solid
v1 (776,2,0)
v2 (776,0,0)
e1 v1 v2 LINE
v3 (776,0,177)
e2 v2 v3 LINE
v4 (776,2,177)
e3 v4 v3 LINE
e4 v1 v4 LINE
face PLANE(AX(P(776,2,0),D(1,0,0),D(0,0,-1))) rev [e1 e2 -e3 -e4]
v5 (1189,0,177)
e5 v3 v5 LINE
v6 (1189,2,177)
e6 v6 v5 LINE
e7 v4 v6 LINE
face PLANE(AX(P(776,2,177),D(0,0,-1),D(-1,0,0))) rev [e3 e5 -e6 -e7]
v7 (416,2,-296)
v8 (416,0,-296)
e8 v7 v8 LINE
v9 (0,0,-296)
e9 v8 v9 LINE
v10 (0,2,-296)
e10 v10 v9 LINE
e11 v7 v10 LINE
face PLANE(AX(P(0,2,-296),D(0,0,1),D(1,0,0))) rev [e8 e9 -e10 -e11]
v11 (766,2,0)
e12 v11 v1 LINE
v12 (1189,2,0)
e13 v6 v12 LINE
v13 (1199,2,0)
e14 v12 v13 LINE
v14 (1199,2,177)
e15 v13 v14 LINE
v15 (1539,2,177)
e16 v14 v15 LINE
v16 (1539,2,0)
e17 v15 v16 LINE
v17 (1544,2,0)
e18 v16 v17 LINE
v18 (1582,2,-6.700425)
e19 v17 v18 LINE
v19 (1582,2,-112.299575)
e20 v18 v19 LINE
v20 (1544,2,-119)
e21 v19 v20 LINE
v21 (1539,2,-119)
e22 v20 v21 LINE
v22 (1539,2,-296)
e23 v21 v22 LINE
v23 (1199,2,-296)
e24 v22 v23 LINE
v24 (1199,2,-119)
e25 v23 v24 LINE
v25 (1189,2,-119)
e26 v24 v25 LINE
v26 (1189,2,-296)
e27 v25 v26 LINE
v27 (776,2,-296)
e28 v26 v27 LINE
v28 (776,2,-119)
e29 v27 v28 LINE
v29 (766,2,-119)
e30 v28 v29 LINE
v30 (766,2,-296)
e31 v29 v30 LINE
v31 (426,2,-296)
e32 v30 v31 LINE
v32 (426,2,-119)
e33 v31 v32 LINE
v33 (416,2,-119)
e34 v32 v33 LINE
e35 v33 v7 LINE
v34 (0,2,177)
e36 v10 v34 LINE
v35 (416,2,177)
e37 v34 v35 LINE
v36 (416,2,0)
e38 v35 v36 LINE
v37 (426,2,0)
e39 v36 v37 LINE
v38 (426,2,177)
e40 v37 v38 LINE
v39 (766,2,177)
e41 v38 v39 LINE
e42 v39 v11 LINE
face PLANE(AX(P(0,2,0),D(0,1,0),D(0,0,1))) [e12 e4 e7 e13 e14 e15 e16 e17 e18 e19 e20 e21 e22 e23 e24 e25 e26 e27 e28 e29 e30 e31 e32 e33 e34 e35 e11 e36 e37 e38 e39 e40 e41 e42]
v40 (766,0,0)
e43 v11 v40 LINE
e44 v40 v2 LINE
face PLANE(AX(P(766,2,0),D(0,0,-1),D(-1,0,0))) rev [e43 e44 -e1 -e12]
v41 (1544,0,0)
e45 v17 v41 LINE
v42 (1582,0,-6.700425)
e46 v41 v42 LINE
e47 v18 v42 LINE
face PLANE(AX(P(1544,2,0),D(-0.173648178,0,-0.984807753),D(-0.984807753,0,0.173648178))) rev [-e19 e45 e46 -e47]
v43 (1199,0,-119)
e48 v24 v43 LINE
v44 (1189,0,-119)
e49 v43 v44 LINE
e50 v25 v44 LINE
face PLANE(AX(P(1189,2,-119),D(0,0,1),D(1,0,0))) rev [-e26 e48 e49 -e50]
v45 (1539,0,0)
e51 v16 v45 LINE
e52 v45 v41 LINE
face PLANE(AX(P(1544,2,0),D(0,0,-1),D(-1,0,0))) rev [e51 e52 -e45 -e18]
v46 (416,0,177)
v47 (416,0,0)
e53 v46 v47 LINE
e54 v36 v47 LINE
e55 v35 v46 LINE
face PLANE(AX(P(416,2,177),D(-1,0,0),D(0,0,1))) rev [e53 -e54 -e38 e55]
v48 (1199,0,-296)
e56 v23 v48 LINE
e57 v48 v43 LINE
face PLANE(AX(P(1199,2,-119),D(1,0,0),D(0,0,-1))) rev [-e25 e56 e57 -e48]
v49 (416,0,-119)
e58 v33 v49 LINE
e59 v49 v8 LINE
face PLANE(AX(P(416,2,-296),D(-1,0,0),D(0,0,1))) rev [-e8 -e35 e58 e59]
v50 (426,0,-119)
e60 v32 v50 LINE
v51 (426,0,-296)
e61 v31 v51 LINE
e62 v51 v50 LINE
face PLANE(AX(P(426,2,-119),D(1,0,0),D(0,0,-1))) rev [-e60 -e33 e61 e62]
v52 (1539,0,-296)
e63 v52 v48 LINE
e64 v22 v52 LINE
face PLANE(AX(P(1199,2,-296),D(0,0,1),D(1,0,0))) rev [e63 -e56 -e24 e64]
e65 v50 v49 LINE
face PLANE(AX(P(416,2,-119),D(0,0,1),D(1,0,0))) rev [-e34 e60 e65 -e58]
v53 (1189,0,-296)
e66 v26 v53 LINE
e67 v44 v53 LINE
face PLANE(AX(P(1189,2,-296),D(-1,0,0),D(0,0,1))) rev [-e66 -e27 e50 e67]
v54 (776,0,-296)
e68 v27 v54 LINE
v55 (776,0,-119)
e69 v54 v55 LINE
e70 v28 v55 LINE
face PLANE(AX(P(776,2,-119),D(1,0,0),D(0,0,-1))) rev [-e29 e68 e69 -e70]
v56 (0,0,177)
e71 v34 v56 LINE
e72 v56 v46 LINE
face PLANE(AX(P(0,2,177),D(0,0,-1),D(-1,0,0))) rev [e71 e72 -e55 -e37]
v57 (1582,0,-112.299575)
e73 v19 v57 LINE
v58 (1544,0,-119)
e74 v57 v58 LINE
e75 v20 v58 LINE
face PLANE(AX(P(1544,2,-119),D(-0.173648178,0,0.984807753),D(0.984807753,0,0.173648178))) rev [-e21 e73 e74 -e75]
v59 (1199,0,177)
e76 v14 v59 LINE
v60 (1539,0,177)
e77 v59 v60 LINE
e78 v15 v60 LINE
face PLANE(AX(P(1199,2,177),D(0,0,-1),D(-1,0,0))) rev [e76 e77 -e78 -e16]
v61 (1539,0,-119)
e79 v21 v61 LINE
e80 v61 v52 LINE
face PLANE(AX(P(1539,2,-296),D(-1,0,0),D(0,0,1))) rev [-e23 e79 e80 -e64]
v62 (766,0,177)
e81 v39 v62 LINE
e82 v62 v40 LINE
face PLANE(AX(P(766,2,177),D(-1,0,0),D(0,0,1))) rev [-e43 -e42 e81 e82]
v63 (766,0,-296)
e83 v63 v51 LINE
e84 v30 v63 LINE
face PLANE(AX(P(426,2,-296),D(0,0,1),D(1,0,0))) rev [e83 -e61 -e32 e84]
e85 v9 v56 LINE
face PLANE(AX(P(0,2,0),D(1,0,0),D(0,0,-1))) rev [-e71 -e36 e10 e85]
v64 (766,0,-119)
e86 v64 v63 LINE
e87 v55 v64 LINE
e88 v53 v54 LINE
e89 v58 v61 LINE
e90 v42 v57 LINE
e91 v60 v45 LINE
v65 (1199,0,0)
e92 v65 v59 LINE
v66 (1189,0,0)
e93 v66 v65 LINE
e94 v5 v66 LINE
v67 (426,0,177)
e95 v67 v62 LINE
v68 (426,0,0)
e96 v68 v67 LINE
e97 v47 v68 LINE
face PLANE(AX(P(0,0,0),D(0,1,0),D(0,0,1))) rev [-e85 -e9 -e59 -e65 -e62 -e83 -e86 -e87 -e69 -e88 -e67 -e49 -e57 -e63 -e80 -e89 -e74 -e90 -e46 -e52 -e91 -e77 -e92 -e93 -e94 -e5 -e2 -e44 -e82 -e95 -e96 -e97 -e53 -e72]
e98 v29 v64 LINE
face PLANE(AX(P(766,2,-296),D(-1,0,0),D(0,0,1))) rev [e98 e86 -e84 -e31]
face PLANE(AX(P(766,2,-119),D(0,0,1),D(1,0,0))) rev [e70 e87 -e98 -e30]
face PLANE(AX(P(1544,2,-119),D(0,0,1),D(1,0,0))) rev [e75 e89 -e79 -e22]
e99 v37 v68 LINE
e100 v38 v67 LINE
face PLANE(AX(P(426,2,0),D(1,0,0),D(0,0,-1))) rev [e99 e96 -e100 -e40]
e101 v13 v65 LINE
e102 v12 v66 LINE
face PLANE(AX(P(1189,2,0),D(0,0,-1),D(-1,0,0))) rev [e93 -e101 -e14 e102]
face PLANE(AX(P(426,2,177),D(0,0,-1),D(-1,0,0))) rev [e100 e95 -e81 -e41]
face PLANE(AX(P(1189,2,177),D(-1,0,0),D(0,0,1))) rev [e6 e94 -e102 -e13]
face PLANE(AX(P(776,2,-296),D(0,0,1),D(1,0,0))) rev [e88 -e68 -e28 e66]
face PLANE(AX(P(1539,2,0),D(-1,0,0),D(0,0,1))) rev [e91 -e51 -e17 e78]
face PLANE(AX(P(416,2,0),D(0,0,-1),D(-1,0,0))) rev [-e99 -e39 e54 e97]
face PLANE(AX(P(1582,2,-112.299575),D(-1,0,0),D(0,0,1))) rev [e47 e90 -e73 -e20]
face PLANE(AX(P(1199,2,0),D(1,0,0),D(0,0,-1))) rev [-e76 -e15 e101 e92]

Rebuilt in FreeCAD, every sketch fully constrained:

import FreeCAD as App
import Part
import Sketcher

V = App.Vector
Q = App.Units.Quantity


def add_polygon(sketch, points):
    """Adds a closed chain of lines whose ends are joined by coincident constraints."""
    first, n = sketch.GeometryCount, len(points)
    for a, b in zip(points, points[1:] + points[:1]):
        sketch.addGeometry(Part.LineSegment(App.Vector(*a, 0), App.Vector(*b, 0)), False)
    for i in range(n):
        sketch.addConstraint(Sketcher.Constraint("Coincident", first + i, 2, first + (i + 1) % n, 1))

doc = App.newDocument("Part")
body = doc.addObject("PartDesign::Body", "Body")

# Sketch on XZ plane
sketch1 = body.newObject("Sketcher::SketchObject", "Sketch")
sketch1.AttachmentSupport = (doc.getObject("XZ_Plane"), [""])
sketch1.MapMode = "FlatFace"
add_polygon(sketch1, [(0, -296), (0, 177), (416, 177), (416, 0), (426, 0), (426, 177), (766, 177), (766, 0), (776, 0), (776, 177), (1189, 177), (1189, 0), (1199, 0), (1199, 177), (1539, 177), (1539, 0), (1544, 0), (1582, -6.700425), (1582, -112.299575), (1544, -119), (1539, -119), (1539, -296), (1199, -296), (1199, -119), (1189, -119), (1189, -296), (776, -296), (776, -119), (766, -119), (766, -296), (426, -296), (426, -119), (416, -119), (416, -296)])  # lines 0-33
sketch1.addConstraint(Sketcher.Constraint("Vertical", 0))
sketch1.addConstraint(Sketcher.Constraint("Horizontal", 1))
sketch1.addConstraint(Sketcher.Constraint("Vertical", 2))
sketch1.addConstraint(Sketcher.Constraint("Horizontal", 3))
sketch1.addConstraint(Sketcher.Constraint("Vertical", 4))
sketch1.addConstraint(Sketcher.Constraint("Horizontal", 5))
sketch1.addConstraint(Sketcher.Constraint("Vertical", 6))
sketch1.addConstraint(Sketcher.Constraint("Horizontal", 7))
sketch1.addConstraint(Sketcher.Constraint("Vertical", 8))
sketch1.addConstraint(Sketcher.Constraint("Horizontal", 9))
sketch1.addConstraint(Sketcher.Constraint("Vertical", 10))
sketch1.addConstraint(Sketcher.Constraint("Horizontal", 11))
sketch1.addConstraint(Sketcher.Constraint("Vertical", 12))
sketch1.addConstraint(Sketcher.Constraint("Horizontal", 13))
sketch1.addConstraint(Sketcher.Constraint("Vertical", 14))
sketch1.addConstraint(Sketcher.Constraint("Horizontal", 15))
sketch1.addConstraint(Sketcher.Constraint("Vertical", 17))
sketch1.addConstraint(Sketcher.Constraint("Horizontal", 19))
sketch1.addConstraint(Sketcher.Constraint("Vertical", 20))
sketch1.addConstraint(Sketcher.Constraint("Horizontal", 21))
sketch1.addConstraint(Sketcher.Constraint("Vertical", 22))
sketch1.addConstraint(Sketcher.Constraint("Horizontal", 23))
sketch1.addConstraint(Sketcher.Constraint("Vertical", 24))
sketch1.addConstraint(Sketcher.Constraint("Horizontal", 25))
sketch1.addConstraint(Sketcher.Constraint("Vertical", 26))
sketch1.addConstraint(Sketcher.Constraint("Horizontal", 27))
sketch1.addConstraint(Sketcher.Constraint("Vertical", 28))
sketch1.addConstraint(Sketcher.Constraint("Horizontal", 29))
sketch1.addConstraint(Sketcher.Constraint("Vertical", 30))
sketch1.addConstraint(Sketcher.Constraint("Horizontal", 31))
sketch1.addConstraint(Sketcher.Constraint("Vertical", 32))
sketch1.addConstraint(Sketcher.Constraint("Horizontal", 33))
sketch1.addConstraint(Sketcher.Constraint("PointOnObject", 0, 2, -2))
sketch1.addConstraint(Sketcher.Constraint("PointOnObject", 2, 2, -1))
sketch1.addConstraint(Sketcher.Constraint("PointOnObject", 6, 2, -1))
sketch1.addConstraint(Sketcher.Constraint("PointOnObject", 10, 2, -1))
sketch1.addConstraint(Sketcher.Constraint("PointOnObject", 14, 2, -1))
sketch1.addConstraint(Sketcher.Constraint("Horizontal", 1, 2, 4, 2))
sketch1.addConstraint(Sketcher.Constraint("Horizontal", 5, 2, 8, 2))
sketch1.addConstraint(Sketcher.Constraint("Horizontal", 9, 2, 12, 2))
sketch1.addConstraint(Sketcher.Constraint("Horizontal", 19, 2, 22, 2))
sketch1.addConstraint(Sketcher.Constraint("Horizontal", 21, 2, 24, 2))
sketch1.addConstraint(Sketcher.Constraint("Horizontal", 23, 2, 26, 2))
sketch1.addConstraint(Sketcher.Constraint("Horizontal", 25, 2, 28, 2))
sketch1.addConstraint(Sketcher.Constraint("Horizontal", 27, 2, 30, 2))
sketch1.addConstraint(Sketcher.Constraint("Horizontal", 29, 2, 32, 2))
sketch1.addConstraint(Sketcher.Constraint("Vertical", 15, 2, 18, 2))
sketch1.addConstraint(Sketcher.Constraint("Vertical", 14, 2, 19, 2))
sketch1.addConstraint(Sketcher.Constraint("Vertical", 12, 2, 21, 2))
sketch1.addConstraint(Sketcher.Constraint("Vertical", 10, 2, 23, 2))
sketch1.addConstraint(Sketcher.Constraint("Vertical", 8, 2, 25, 2))
sketch1.addConstraint(Sketcher.Constraint("Vertical", 6, 2, 27, 2))
sketch1.addConstraint(Sketcher.Constraint("Vertical", 4, 2, 29, 2))
sketch1.addConstraint(Sketcher.Constraint("Vertical", 2, 2, 31, 2))
sketch1.addConstraint(Sketcher.Constraint("Equal", 3, 7))
sketch1.addConstraint(Sketcher.Constraint("Equal", 7, 11))
sketch1.addConstraint(Sketcher.Constraint("Equal", 5, 13))
sketch1.addConstraint(Sketcher.Constraint("Equal", 14, 20))
sketch1.addConstraint(Sketcher.Constraint("Equal", 16, 18))
sketch1.addConstraint(Sketcher.Constraint("DistanceX", 1, 1, 1, 2, 416.0))
sketch1.addConstraint(Sketcher.Constraint("DistanceX", 3, 1, 3, 2, 10.0))
sketch1.addConstraint(Sketcher.Constraint("DistanceX", 5, 1, 5, 2, 340.0))
sketch1.addConstraint(Sketcher.Constraint("DistanceX", 9, 1, 9, 2, 413.0))
sketch1.addConstraint(Sketcher.Constraint("DistanceX", 15, 1, 15, 2, 5.0))
sketch1.addConstraint(Sketcher.Constraint("DistanceY", 0, 1, 0, 2, 473.0))
sketch1.addConstraint(Sketcher.Constraint("DistanceY", 2, 2, 2, 1, 177.0))
sketch1.addConstraint(Sketcher.Constraint("Angle", 16, Q("-10 deg")))
sketch1.addConstraint(Sketcher.Constraint("DistanceX", -1, 1, 16, 2, 1582.0))
pad1 = body.newObject("PartDesign::Pad", "Pad")
pad1.Profile = sketch1
pad1.Length = 2
pad1.Reversed = True

doc.recompute()
